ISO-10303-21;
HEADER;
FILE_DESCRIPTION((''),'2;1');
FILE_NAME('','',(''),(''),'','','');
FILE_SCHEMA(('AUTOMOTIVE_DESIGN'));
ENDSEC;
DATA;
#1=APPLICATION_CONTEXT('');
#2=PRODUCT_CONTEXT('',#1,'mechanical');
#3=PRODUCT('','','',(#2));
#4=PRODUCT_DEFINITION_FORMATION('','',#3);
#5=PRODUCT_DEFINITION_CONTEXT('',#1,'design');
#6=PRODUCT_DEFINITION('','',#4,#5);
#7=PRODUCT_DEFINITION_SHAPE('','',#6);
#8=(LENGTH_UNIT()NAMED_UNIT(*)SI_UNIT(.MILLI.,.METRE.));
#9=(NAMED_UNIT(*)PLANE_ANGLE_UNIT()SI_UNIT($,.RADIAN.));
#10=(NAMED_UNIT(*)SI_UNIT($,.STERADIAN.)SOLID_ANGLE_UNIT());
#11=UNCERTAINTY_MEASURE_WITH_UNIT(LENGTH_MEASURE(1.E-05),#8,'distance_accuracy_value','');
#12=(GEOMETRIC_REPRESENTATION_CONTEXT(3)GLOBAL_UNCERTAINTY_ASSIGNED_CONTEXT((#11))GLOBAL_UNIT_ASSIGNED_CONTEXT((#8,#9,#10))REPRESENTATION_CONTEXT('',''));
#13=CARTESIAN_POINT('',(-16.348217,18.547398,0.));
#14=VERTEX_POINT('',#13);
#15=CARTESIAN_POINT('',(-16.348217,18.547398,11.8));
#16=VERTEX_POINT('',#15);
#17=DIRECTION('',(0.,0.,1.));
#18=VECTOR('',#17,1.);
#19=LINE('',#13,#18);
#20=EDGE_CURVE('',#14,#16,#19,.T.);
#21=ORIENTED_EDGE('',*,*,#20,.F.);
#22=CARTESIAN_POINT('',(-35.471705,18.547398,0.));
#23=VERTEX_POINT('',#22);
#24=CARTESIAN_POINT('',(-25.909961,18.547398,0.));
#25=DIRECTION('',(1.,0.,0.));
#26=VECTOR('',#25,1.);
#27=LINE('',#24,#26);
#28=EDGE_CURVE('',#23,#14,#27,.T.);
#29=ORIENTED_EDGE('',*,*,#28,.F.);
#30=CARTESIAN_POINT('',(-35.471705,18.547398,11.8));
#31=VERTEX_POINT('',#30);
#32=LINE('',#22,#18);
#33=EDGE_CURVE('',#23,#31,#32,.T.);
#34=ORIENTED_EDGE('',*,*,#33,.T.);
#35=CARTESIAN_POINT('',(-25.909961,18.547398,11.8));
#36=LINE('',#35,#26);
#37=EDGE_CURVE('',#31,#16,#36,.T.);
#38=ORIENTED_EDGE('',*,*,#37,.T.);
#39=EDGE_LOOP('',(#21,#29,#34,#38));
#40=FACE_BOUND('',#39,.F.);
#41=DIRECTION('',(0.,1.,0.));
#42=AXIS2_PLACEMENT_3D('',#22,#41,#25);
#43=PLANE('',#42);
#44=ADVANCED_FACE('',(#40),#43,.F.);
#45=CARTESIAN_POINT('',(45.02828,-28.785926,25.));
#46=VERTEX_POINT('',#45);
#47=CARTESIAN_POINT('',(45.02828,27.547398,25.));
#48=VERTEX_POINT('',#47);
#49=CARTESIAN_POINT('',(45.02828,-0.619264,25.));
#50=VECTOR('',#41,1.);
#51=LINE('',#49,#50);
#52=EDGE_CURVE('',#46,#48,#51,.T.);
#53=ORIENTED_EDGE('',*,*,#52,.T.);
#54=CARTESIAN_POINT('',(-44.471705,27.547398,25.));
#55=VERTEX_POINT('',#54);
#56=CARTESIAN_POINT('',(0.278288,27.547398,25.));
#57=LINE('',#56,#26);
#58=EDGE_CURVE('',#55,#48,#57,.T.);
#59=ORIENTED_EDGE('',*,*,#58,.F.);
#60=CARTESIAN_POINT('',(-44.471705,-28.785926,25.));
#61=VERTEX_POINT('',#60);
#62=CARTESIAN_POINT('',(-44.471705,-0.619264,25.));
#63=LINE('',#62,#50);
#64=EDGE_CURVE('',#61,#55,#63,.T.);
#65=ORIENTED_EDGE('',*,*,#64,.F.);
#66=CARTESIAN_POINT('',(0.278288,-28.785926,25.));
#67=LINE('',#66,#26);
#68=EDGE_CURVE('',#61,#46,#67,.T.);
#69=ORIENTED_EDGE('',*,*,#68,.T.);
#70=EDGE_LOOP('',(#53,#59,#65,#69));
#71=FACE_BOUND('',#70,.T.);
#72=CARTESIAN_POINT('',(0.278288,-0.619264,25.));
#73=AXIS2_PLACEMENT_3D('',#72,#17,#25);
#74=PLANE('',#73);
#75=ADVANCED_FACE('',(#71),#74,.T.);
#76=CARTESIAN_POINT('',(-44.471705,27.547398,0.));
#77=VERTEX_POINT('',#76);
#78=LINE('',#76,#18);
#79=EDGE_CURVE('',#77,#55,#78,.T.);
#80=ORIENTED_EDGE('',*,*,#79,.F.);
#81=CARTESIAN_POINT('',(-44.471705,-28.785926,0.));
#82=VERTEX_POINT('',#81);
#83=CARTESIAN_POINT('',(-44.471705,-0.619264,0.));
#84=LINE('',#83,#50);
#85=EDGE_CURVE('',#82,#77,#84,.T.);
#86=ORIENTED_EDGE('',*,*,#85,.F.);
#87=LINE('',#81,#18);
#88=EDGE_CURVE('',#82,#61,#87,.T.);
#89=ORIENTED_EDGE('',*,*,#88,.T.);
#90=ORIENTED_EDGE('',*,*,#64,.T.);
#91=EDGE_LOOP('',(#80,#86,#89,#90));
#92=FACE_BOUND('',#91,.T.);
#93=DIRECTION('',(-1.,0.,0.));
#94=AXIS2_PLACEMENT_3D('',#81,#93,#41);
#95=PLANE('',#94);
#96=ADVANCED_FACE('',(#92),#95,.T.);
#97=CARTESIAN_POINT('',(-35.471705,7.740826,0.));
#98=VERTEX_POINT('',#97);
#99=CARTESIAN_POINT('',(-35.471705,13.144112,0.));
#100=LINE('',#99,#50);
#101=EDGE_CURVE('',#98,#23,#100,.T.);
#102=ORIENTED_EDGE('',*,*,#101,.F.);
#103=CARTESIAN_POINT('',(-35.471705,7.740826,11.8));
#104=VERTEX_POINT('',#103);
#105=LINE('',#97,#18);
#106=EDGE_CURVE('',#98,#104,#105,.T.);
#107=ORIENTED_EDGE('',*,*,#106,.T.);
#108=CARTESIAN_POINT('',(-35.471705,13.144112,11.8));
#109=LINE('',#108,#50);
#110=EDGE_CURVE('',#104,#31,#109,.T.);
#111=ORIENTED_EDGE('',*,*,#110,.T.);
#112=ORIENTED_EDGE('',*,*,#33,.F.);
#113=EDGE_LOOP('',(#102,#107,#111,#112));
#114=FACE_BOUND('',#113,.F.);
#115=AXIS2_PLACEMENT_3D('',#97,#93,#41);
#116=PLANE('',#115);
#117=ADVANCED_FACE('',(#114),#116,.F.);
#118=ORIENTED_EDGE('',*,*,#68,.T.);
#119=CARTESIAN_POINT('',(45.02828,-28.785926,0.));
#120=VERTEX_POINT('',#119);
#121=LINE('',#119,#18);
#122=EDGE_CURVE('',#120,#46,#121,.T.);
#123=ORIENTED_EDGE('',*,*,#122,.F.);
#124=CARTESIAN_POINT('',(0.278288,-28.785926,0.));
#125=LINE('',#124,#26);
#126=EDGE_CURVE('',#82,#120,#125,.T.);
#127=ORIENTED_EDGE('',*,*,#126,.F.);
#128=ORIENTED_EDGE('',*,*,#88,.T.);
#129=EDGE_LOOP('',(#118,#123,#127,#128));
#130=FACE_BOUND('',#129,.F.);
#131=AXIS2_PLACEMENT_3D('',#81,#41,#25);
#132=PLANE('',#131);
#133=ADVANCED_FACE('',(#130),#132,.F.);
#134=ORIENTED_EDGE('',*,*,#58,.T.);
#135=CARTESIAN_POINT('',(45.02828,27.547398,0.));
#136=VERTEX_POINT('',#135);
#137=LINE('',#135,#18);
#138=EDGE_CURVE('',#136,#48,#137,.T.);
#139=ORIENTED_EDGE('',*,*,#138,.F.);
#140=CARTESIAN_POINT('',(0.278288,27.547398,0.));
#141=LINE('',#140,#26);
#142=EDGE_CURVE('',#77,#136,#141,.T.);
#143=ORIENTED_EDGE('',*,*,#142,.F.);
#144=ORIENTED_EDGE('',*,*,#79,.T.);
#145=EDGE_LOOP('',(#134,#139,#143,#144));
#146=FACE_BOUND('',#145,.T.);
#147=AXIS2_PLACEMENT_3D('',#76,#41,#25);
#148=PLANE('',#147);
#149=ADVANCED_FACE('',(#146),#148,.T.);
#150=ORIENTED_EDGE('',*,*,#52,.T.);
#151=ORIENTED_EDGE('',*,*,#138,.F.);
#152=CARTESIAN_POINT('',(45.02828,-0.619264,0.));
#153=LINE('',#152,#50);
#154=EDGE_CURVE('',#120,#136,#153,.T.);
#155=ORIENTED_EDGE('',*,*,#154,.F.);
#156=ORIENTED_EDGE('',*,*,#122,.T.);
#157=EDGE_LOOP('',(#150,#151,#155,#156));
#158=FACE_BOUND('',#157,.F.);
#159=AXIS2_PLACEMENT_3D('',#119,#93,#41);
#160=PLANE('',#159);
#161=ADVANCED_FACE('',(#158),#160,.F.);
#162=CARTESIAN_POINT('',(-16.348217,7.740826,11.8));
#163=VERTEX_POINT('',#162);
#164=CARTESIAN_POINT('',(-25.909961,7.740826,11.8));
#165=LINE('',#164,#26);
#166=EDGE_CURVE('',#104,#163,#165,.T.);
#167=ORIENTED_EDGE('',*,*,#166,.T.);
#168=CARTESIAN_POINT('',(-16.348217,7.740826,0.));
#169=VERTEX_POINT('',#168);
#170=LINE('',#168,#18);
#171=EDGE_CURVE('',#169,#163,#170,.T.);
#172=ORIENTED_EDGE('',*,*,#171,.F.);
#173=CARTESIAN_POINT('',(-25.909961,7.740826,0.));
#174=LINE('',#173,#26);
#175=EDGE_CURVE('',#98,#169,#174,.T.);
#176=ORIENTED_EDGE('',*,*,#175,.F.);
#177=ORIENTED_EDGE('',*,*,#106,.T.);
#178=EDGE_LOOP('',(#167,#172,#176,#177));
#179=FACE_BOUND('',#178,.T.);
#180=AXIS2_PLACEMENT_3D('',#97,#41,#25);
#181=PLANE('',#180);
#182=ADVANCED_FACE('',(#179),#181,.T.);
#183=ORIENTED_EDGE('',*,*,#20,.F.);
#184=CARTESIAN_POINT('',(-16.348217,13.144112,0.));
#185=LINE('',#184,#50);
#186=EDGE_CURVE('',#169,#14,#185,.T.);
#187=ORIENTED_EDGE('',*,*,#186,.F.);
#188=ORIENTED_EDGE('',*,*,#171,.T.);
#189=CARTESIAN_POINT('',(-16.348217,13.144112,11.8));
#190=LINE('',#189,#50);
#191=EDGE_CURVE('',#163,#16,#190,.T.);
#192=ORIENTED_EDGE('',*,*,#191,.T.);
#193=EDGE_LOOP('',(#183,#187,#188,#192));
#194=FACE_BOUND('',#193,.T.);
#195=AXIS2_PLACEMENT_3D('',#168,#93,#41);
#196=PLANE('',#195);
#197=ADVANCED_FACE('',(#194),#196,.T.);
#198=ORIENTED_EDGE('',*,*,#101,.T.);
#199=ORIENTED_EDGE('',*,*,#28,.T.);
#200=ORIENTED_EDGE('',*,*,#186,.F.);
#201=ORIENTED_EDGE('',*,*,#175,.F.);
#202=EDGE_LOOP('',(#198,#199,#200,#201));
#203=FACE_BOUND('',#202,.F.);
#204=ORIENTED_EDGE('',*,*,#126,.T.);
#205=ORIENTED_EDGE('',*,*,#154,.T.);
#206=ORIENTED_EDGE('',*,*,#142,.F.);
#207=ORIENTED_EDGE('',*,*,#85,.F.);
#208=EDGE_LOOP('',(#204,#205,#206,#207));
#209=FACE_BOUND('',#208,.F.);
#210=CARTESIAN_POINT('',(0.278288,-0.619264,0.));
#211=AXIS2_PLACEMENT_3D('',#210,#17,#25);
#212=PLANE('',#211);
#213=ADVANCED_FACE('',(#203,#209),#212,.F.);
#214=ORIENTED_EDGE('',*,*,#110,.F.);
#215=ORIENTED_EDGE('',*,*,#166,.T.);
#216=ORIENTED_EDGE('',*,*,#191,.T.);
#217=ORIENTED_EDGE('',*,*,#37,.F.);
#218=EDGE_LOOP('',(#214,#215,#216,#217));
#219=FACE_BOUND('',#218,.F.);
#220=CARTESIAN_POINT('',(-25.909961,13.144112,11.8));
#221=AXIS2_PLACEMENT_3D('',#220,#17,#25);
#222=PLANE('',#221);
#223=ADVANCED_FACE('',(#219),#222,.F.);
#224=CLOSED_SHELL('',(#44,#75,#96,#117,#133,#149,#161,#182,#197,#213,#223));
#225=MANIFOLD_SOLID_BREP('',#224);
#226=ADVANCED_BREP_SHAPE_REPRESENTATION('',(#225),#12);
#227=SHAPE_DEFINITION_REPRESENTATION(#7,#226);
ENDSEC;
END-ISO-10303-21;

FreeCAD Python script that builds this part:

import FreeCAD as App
import Part
import Sketcher


def add_polygon(sketch, points):
    """Adds a closed chain of lines whose ends are joined by coincident constraints."""
    first, n = sketch.GeometryCount, len(points)
    for a, b in zip(points, points[1:] + points[:1]):
        sketch.addGeometry(Part.LineSegment(App.Vector(*a, 0), App.Vector(*b, 0)), False)
    for i in range(n):
        sketch.addConstraint(Sketcher.Constraint("Coincident", first + i, 2, first + (i + 1) % n, 1))

doc = App.newDocument("Part")
body = doc.addObject("PartDesign::Body", "Body")

# Sketch on XY plane
sketch1 = body.newObject("Sketcher::SketchObject", "Sketch")
sketch1.AttachmentSupport = (doc.getObject("XY_Plane"), [""])
sketch1.MapMode = "FlatFace"
add_polygon(sketch1, [(-44, 28), (-44, -29), (45, -29), (45, 28)])  # lines 0-3
sketch1.addConstraint(Sketcher.Constraint("Vertical", 0))
sketch1.addConstraint(Sketcher.Constraint("Horizontal", 1))
sketch1.addConstraint(Sketcher.Constraint("Vertical", 2))
sketch1.addConstraint(Sketcher.Constraint("Horizontal", 3))
sketch1.addConstraint(Sketcher.Constraint("DistanceX", 1, 1, 1, 2, 89.499985))
sketch1.addConstraint(Sketcher.Constraint("DistanceY", 0, 2, 0, 1, 56.333324))
sketch1.addConstraint(Sketcher.Constraint("DistanceX", -1, 1, 1, 2, 45.02828))
sketch1.addConstraint(Sketcher.Constraint("DistanceY", 0, 2, -1, 1, 28.785926))
pad1 = body.newObject("PartDesign::Pad", "Pad")
pad1.Profile = sketch1
pad1.Length = 25

# Sketch on XY plane
sketch2 = body.newObject("Sketcher::SketchObject", "Sketch001")
sketch2.AttachmentSupport = (doc.getObject("XY_Plane"), [""])
sketch2.MapMode = "FlatFace"
add_polygon(sketch2, [(-35, 19), (-35, 8), (-16, 8), (-16, 19)])  # lines 0-3
sketch2.addConstraint(Sketcher.Constraint("Vertical", 0))
sketch2.addConstraint(Sketcher.Constraint("Horizontal", 1))
sketch2.addConstraint(Sketcher.Constraint("Vertical", 2))
sketch2.addConstraint(Sketcher.Constraint("Horizontal", 3))
sketch2.addConstraint(Sketcher.Constraint("DistanceX", 1, 1, 1, 2, 19.123488))
sketch2.addConstraint(Sketcher.Constraint("DistanceY", 0, 2, 0, 1, 10.806571))
sketch2.addConstraint(Sketcher.Constraint("DistanceX", 0, 2, -1, 1, 35.471705))
sketch2.addConstraint(Sketcher.Constraint("DistanceY", -1, 1, 0, 2, 7.740826))
pocket1 = body.newObject("PartDesign::Pocket", "Pocket")
pocket1.Profile = sketch2
pocket1.Length = 11.8
pocket1.Reversed = True

doc.recompute()
